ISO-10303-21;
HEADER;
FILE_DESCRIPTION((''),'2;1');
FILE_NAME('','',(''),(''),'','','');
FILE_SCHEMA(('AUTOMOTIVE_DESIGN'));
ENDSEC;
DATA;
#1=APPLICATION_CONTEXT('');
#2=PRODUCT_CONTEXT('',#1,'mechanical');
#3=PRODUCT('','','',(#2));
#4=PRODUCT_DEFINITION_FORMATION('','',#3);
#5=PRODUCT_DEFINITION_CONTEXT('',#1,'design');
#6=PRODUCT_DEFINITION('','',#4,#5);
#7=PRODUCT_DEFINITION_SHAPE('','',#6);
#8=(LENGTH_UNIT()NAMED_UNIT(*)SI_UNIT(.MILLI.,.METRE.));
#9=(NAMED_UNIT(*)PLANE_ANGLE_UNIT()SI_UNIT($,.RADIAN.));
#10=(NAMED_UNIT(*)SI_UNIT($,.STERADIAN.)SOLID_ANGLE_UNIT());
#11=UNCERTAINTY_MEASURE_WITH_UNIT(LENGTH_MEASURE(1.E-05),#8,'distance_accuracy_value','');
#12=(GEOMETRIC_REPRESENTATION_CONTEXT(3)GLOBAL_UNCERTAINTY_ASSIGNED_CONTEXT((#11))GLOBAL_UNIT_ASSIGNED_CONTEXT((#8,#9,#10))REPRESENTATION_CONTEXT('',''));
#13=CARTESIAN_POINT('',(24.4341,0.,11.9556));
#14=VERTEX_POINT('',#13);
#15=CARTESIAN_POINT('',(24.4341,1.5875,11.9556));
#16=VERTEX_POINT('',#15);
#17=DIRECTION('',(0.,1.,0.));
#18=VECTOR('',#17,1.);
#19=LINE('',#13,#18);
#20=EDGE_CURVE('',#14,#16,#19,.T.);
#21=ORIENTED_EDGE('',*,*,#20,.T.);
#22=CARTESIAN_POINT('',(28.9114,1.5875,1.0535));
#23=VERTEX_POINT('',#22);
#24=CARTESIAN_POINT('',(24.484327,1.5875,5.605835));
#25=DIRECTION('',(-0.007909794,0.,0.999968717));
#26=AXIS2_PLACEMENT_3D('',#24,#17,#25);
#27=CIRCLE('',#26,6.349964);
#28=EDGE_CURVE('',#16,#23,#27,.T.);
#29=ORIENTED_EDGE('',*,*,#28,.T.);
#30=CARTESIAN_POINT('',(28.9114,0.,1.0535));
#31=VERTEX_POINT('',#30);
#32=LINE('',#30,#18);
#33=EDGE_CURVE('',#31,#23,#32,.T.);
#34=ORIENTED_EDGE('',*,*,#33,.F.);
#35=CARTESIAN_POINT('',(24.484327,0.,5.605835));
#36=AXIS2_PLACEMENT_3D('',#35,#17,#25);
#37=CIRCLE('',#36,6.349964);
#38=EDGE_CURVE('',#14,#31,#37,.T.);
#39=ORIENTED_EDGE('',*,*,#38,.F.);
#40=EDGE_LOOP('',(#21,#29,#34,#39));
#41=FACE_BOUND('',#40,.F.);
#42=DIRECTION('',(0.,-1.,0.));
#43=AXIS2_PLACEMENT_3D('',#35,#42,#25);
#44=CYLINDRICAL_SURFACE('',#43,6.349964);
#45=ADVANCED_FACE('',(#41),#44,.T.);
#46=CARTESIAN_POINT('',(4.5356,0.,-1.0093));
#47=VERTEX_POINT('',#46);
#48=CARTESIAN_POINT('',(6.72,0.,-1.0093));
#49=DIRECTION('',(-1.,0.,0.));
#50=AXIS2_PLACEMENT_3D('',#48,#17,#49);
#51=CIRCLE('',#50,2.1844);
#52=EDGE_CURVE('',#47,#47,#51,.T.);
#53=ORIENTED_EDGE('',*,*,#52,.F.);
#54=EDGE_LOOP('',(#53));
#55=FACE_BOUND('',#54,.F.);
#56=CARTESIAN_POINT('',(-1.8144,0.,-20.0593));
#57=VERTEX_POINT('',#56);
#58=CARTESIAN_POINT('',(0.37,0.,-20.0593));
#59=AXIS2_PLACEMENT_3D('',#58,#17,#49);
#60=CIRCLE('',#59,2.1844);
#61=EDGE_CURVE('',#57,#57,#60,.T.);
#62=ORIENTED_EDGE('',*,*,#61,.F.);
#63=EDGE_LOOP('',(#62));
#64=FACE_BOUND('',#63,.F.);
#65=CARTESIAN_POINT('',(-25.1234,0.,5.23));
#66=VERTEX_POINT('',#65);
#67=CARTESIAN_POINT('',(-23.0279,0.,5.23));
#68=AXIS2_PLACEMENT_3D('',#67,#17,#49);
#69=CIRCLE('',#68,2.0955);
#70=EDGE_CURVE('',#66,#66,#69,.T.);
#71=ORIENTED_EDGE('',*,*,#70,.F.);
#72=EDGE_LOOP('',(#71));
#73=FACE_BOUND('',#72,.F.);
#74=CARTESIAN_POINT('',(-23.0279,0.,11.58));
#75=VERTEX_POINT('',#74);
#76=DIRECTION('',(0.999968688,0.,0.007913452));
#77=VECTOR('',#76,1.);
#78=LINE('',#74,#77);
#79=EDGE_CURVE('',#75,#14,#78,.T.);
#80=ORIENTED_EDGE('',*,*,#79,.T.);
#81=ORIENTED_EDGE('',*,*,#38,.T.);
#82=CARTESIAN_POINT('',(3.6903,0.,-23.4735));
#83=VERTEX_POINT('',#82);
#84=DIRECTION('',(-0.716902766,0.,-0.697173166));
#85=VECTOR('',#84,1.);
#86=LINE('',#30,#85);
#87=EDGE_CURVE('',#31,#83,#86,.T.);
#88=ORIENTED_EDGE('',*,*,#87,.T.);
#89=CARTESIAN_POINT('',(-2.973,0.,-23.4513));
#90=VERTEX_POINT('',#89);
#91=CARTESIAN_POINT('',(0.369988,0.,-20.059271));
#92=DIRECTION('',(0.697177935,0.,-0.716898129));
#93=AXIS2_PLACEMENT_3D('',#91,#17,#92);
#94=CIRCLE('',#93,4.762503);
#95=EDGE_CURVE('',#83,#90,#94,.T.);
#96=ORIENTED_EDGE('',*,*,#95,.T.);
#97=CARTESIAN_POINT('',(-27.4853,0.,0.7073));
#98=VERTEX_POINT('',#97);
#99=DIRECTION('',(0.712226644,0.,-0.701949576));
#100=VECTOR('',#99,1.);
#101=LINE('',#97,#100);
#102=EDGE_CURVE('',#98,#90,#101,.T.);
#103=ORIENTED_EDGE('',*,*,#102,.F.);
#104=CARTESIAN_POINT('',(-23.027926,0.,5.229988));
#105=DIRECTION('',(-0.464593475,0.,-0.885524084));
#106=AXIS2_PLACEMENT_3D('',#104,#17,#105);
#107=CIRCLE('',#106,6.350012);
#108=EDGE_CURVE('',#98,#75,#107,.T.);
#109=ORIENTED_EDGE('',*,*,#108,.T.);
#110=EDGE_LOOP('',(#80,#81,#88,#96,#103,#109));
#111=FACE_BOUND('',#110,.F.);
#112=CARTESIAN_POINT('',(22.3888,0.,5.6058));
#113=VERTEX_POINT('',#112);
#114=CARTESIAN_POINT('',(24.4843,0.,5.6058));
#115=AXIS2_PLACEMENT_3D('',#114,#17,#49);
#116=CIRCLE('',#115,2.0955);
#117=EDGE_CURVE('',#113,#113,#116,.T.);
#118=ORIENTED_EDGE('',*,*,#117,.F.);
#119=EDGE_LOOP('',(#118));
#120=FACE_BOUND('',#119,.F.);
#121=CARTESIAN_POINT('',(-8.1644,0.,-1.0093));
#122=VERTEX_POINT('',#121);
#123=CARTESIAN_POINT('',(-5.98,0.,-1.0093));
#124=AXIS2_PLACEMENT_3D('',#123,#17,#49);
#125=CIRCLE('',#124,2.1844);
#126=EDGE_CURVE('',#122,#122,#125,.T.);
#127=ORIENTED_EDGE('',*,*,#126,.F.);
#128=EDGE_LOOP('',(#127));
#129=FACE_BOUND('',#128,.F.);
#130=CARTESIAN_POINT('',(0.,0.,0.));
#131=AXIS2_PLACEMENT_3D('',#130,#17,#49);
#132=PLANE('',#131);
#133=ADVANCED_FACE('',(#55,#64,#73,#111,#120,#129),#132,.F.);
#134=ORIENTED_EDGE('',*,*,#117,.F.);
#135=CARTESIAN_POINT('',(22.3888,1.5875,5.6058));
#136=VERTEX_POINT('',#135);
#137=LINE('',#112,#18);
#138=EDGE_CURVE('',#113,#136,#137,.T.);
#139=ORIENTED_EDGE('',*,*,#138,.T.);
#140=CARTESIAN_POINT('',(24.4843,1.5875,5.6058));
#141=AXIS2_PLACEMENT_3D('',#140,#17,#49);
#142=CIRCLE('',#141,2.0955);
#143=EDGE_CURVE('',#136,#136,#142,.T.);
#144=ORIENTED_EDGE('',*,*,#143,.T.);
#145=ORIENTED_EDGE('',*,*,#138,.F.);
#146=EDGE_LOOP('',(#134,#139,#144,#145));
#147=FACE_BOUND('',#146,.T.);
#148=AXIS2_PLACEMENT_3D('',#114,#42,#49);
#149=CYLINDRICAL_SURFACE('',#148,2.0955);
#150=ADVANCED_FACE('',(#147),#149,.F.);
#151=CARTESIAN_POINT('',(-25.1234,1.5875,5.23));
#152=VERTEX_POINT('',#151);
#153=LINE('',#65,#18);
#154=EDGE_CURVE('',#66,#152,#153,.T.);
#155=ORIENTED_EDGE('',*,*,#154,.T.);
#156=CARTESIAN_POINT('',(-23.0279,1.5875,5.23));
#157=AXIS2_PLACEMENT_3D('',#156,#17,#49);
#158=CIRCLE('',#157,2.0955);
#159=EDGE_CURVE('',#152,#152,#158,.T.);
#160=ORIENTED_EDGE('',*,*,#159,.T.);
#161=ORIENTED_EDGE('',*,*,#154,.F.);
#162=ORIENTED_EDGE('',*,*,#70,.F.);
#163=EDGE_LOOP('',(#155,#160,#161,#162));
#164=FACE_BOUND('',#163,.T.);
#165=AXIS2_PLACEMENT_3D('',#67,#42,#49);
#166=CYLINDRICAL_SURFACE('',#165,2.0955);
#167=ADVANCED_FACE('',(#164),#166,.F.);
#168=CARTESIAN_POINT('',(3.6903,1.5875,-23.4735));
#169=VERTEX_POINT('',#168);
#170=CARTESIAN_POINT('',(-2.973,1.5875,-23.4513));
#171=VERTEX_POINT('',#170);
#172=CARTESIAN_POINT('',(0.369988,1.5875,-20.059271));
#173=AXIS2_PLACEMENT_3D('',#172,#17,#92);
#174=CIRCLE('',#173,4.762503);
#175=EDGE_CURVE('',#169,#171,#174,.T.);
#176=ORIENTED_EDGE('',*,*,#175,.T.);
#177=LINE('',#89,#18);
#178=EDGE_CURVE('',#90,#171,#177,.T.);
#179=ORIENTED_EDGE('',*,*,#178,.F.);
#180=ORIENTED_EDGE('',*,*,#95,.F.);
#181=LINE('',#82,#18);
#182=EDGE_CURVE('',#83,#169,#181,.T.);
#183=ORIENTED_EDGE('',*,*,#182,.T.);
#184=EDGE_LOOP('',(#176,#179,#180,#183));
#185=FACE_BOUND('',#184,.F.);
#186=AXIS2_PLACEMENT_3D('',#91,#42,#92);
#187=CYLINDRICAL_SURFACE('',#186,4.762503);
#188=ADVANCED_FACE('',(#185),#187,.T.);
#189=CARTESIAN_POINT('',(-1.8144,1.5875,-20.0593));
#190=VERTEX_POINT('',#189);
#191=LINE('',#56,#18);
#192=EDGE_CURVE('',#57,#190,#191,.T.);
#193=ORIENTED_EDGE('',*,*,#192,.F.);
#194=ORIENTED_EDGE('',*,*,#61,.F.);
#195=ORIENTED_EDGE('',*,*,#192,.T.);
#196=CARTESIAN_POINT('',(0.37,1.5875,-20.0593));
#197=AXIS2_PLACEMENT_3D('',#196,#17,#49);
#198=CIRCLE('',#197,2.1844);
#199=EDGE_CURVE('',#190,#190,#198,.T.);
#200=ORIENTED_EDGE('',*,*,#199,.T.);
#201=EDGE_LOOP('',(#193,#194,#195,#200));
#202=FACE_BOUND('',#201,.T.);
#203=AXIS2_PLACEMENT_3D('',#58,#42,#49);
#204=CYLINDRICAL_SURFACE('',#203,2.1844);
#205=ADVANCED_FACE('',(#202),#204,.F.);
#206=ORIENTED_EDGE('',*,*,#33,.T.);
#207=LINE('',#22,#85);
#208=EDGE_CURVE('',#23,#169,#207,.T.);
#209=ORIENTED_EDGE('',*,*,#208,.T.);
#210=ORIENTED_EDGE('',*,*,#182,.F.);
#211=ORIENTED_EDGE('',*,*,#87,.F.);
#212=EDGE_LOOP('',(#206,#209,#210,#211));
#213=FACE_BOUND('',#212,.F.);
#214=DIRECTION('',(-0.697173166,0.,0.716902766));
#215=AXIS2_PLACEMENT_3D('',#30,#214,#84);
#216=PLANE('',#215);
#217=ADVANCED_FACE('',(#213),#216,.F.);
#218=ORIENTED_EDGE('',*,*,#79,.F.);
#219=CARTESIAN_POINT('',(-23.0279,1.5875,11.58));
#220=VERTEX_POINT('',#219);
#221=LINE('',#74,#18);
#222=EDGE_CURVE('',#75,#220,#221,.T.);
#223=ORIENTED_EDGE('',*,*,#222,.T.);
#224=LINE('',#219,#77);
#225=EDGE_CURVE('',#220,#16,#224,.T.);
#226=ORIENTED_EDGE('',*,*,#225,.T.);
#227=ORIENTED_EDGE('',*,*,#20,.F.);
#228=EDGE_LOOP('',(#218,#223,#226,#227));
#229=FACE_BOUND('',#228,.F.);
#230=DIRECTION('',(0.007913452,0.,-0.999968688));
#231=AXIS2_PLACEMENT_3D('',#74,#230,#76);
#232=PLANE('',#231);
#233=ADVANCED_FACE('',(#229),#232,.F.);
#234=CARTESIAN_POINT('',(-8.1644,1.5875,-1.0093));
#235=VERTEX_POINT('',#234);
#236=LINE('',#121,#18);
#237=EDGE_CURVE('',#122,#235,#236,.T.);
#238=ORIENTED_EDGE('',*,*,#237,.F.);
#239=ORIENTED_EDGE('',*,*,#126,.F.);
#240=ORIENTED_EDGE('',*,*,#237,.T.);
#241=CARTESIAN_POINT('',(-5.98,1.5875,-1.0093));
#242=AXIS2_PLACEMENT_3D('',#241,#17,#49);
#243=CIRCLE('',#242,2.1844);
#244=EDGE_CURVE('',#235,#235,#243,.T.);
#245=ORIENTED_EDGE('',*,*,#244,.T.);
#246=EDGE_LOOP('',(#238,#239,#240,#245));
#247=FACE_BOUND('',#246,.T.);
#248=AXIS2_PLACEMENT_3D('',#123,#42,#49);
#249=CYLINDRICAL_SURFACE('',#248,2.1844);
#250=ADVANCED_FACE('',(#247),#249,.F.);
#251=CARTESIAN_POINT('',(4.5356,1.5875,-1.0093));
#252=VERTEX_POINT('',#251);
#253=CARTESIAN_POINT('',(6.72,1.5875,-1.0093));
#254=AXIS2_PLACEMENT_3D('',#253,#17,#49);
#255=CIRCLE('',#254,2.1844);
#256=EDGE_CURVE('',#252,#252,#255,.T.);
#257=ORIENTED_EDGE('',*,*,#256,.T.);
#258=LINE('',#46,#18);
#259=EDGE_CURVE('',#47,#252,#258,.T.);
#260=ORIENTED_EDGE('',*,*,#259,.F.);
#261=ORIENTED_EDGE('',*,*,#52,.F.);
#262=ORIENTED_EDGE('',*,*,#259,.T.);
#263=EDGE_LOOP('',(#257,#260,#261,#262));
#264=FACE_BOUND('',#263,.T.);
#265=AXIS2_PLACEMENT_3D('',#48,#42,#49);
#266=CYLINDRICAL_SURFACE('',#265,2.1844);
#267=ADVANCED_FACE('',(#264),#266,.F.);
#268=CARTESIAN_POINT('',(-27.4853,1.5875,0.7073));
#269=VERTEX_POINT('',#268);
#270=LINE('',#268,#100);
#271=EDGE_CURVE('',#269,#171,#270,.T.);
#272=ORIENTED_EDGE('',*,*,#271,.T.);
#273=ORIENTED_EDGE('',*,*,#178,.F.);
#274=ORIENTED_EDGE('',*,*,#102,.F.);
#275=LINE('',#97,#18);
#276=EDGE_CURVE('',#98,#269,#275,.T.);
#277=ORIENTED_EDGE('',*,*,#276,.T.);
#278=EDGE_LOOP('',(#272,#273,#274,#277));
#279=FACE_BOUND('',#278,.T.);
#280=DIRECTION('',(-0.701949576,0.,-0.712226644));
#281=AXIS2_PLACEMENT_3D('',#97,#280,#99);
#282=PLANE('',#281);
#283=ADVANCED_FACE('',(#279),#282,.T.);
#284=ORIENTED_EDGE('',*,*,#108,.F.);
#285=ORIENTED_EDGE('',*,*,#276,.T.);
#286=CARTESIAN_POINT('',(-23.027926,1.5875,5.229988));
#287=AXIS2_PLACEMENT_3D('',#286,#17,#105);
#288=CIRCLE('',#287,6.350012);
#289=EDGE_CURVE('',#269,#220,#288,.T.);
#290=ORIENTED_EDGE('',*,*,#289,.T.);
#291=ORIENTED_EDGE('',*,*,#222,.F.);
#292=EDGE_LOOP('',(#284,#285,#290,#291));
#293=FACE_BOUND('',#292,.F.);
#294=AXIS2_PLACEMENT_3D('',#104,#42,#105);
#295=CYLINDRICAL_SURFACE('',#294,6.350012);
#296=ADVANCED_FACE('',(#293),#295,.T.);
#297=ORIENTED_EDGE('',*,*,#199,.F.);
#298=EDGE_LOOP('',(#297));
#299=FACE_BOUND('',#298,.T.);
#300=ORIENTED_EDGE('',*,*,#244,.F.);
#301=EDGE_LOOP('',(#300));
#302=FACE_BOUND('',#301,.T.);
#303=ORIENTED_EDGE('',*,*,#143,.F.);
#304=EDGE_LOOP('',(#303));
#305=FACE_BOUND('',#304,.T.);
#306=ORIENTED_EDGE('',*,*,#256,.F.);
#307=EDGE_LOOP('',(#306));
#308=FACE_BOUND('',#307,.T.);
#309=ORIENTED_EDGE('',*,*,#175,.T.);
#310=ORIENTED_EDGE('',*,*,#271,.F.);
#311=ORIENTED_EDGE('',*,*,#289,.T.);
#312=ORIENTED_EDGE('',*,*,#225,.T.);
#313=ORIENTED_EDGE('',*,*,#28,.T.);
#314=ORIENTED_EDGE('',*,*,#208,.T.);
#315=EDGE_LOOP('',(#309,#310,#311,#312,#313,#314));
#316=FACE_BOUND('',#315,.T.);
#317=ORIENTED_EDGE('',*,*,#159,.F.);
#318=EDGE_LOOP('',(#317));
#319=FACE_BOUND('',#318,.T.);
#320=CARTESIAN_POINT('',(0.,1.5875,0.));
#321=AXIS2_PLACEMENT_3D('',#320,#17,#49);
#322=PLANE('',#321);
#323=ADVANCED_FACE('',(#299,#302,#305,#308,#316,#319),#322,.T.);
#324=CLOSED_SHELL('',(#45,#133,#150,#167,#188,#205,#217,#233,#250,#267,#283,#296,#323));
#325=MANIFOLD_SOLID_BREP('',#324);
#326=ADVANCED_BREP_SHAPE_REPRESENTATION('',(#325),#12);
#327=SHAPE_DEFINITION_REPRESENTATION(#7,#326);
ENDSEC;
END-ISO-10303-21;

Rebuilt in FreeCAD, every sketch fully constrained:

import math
import FreeCAD as App
import Part
import Sketcher

V = App.Vector
Q = App.Units.Quantity

doc = App.newDocument("Part")
body = doc.addObject("PartDesign::Body", "Body")

sketch1 = doc.addObject("Sketcher::SketchObject", "Sketch")
body.addObject(sketch1)
sketch1.AttachmentSupport = (doc.XZ_Plane, [""])
sketch1.MapMode = "FlatFace"
sketch1.addGeometry(Part.LineSegment(V(-3, -23.5, 0), V(-27.5, 0.7, 0)), False)
sketch1.addGeometry(Part.ArcOfCircle(Part.Circle(V(-23, 5.2, 0), V(0, 0, 1), 6.4), math.radians(90), math.radians(225)), False)
sketch1.addGeometry(Part.LineSegment(V(-23, 11.6, 0), V(24.4, 12, 0)), False)
sketch1.addGeometry(Part.ArcOfCircle(Part.Circle(V(24.5, 5.6, 0), V(0, 0, 1), 6.3), math.radians(-46), math.radians(90)), False)
sketch1.addGeometry(Part.LineSegment(V(28.9, 1.1, 0), V(3.7, -23.5, 0)), False)
sketch1.addGeometry(Part.ArcOfCircle(Part.Circle(V(0.4, -20.1, 0), V(0, 0, 1), 4.8), math.radians(-135), math.radians(-46)), False)
sketch1.addGeometry(Part.Circle(V(0.4, -20.1, 0), V(0, 0, 1), 2.2), False)
sketch1.addGeometry(Part.Circle(V(6.7, -1, 0), V(0, 0, 1), 2.2), False)
sketch1.addGeometry(Part.Circle(V(24.5, 5.6, 0), V(0, 0, 1), 2.1), False)
sketch1.addGeometry(Part.Circle(V(-6, -1, 0), V(0, 0, 1), 2.2), False)
sketch1.addGeometry(Part.Circle(V(-23, 5.2, 0), V(0, 0, 1), 2.1), False)
sketch1.addConstraint(Sketcher.Constraint("Tangent", 0, 2, 1, 2))
sketch1.addConstraint(Sketcher.Constraint("Coincident", 1, 1, 2, 1))
sketch1.addConstraint(Sketcher.Constraint("Tangent", 2, 2, 3, 2))
sketch1.addConstraint(Sketcher.Constraint("Tangent", 3, 1, 4, 1))
sketch1.addConstraint(Sketcher.Constraint("Tangent", 4, 2, 5, 2))
sketch1.addConstraint(Sketcher.Constraint("Tangent", 5, 1, 0, 1))
sketch1.addConstraint(Sketcher.Constraint("Coincident", 6, 3, 5, 3))
sketch1.addConstraint(Sketcher.Constraint("Coincident", 8, 3, 3, 3))
sketch1.addConstraint(Sketcher.Constraint("Coincident", 10, 3, 1, 3))
sketch1.addConstraint(Sketcher.Constraint("Equal", 1, 3))
sketch1.addConstraint(Sketcher.Constraint("Equal", 6, 7))
sketch1.addConstraint(Sketcher.Constraint("Equal", 7, 9))
sketch1.addConstraint(Sketcher.Constraint("Equal", 8, 10))
sketch1.addConstraint(Sketcher.Constraint("Horizontal", 7, 3, 9, 3))
sketch1.addConstraint(Sketcher.Constraint("Vertical", 10, 3, 1, 1))
sketch1.addConstraint(Sketcher.Constraint("Radius", 1, Q("0.25 in")))
sketch1.addConstraint(Sketcher.Constraint("Diameter", 8, Q("0.165 in")))
sketch1.addConstraint(Sketcher.Constraint("Radius", 5, Q("0.1875 in")))
sketch1.addConstraint(Sketcher.Constraint("DistanceX", 9, 3, 7, 3, Q("0.5 in")))
sketch1.addConstraint(Sketcher.Constraint("Diameter", 6, Q("0.172 in")))
sketch1.addConstraint(Sketcher.Constraint("Angle", 4, Q("-135.7994 deg")))
sketch1.addConstraint(Sketcher.Constraint("DistanceX", 5, 3, 7, 3, Q("0.25 in")))
sketch1.addConstraint(Sketcher.Constraint("DistanceY", 5, 3, 7, 3, Q("0.75 in")))
sketch1.addConstraint(Sketcher.Constraint("DistanceY", 7, 3, 1, 3, 6.2393))
sketch1.addConstraint(Sketcher.Constraint("DistanceX", 1, 3, 9, 3, 17.048))
sketch1.addConstraint(Sketcher.Constraint("DistanceX", 1, 3, -1, 1, Q("0.9066 in")))
sketch1.addConstraint(Sketcher.Constraint("DistanceY", -1, 1, 1, 3, Q("0.2059 in")))
sketch1.addConstraint(Sketcher.Constraint("DistanceY", -1, 1, 3, 3, Q("0.2207 in")))
pad1 = doc.addObject("PartDesign::Pad", "Pad")
body.addObject(pad1)
pad1.Profile = sketch1
pad1.Length = Q("0.0625 in")
pad1.Reversed = True

doc.recompute()
